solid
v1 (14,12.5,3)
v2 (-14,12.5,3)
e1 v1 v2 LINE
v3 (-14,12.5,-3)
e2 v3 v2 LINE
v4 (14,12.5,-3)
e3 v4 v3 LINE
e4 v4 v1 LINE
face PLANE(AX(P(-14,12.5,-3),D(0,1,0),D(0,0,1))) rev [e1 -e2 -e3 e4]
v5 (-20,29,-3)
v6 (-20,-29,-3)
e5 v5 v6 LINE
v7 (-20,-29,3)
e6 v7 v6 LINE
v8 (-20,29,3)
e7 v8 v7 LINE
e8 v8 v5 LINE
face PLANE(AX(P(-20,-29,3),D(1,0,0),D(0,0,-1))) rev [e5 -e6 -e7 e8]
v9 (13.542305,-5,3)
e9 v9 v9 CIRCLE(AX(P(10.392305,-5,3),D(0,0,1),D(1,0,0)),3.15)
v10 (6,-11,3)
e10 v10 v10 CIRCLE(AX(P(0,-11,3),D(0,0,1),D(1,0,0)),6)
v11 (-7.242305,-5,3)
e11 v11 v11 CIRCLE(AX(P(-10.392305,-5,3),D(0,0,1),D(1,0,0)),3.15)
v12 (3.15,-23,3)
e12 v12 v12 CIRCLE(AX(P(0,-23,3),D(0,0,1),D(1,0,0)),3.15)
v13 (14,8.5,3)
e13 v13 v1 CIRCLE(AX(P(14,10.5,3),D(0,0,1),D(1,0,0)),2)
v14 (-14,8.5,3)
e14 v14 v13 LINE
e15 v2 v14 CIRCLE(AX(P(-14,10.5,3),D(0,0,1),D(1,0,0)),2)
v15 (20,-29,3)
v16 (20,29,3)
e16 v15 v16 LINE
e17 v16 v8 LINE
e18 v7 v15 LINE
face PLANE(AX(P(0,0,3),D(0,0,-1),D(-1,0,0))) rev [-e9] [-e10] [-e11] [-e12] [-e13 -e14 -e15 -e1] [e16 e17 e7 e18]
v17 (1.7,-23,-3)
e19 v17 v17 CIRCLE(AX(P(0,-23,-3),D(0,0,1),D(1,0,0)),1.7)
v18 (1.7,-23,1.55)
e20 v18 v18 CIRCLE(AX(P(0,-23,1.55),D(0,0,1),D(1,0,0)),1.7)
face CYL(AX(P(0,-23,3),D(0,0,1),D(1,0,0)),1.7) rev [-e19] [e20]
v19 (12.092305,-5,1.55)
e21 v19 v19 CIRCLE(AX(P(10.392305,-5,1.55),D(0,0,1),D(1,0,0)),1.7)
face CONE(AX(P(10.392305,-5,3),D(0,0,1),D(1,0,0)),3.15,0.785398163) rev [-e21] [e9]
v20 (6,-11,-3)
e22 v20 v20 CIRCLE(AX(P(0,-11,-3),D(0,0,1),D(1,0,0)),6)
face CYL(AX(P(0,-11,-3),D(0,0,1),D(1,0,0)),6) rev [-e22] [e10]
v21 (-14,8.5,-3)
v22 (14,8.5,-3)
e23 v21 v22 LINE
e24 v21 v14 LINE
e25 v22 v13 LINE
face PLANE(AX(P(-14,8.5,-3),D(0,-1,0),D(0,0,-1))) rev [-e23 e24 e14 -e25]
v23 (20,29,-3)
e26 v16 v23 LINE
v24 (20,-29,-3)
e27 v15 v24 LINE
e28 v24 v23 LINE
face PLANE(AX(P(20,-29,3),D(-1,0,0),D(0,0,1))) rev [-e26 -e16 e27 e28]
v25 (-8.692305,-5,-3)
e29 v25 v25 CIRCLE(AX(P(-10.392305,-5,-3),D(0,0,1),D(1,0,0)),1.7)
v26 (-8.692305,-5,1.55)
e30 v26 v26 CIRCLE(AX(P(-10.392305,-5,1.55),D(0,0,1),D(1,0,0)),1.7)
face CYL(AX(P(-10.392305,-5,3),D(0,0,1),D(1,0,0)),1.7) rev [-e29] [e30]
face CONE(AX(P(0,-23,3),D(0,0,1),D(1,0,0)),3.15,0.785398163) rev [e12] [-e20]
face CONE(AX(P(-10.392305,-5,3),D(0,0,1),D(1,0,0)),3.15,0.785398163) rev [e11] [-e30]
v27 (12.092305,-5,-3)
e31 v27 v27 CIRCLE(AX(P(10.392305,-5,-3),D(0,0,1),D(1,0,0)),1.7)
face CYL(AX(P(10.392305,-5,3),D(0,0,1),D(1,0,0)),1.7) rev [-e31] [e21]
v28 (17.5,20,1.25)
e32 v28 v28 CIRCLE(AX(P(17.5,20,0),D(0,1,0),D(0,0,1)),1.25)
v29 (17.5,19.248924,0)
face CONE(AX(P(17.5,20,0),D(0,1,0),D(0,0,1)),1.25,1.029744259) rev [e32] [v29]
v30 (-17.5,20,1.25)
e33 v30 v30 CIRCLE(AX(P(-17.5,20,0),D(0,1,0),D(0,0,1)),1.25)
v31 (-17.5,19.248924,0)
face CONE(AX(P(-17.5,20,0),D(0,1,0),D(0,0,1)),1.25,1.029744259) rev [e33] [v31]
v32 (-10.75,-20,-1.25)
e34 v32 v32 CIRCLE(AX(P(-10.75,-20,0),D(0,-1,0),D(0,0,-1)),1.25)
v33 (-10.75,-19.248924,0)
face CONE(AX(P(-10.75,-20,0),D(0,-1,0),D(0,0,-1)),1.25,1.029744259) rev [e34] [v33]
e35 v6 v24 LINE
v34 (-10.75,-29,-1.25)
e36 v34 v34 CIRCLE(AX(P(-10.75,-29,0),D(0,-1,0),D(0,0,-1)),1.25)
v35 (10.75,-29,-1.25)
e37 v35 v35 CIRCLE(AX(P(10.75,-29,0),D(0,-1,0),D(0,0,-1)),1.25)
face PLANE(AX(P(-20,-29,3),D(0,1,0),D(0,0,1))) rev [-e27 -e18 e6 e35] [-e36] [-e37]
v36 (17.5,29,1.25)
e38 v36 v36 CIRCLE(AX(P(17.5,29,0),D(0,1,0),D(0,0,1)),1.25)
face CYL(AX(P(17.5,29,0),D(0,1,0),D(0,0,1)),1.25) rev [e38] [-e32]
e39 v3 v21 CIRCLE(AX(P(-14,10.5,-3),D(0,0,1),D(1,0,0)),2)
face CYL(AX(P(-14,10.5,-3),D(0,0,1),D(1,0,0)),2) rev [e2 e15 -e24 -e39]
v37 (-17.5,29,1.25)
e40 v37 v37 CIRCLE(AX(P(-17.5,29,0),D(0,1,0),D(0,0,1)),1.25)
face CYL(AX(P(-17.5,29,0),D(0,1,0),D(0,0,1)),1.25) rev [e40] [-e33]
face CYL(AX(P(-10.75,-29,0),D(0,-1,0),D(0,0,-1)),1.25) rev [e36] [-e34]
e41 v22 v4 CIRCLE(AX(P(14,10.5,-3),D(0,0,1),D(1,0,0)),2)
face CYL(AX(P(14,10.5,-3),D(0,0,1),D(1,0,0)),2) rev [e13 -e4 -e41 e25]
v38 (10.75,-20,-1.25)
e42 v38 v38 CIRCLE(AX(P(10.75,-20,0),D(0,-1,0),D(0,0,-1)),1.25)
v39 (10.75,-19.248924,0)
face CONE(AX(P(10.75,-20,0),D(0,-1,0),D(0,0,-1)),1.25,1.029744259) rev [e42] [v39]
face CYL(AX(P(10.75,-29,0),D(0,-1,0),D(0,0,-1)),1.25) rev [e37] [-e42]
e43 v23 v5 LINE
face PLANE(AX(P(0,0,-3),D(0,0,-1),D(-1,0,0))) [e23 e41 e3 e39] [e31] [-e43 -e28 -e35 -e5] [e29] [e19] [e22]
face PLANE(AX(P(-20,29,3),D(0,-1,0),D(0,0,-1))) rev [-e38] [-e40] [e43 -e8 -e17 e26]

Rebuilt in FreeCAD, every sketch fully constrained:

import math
import FreeCAD as App
import Part
import Sketcher
from FreeCAD import Vector

doc = App.newDocument("Part")
body = doc.addObject("PartDesign::Body", "Body")

# Sketch on XY plane
sketch1 = body.newObject("Sketcher::SketchObject", "Sketch")
sketch1.AttachmentSupport = (doc.getObject("XY_Plane"), [""])
sketch1.MapMode = "FlatFace"
sketch1.addGeometry(Part.LineSegment(Vector(-20, 29, 0), Vector(-20, -29, 0)), False)
sketch1.addGeometry(Part.LineSegment(Vector(-20, -29, 0), Vector(20, -29, 0)), False)
sketch1.addGeometry(Part.LineSegment(Vector(20, -29, 0), Vector(20, 29, 0)), False)
sketch1.addGeometry(Part.LineSegment(Vector(20, 29, 0), Vector(-20, 29, 0)), False)
sketch1.addConstraint(Sketcher.Constraint("Coincident", 0, 2, 1, 1))
sketch1.addConstraint(Sketcher.Constraint("Coincident", 1, 2, 2, 1))
sketch1.addConstraint(Sketcher.Constraint("Coincident", 2, 2, 3, 1))
sketch1.addConstraint(Sketcher.Constraint("Coincident", 3, 2, 0, 1))
sketch1.addConstraint(Sketcher.Constraint("Vertical", 0))
sketch1.addConstraint(Sketcher.Constraint("Horizontal", 1))
sketch1.addConstraint(Sketcher.Constraint("Vertical", 2))
sketch1.addConstraint(Sketcher.Constraint("Horizontal", 3))
sketch1.addConstraint(Sketcher.Constraint("Symmetric", 0, 2, 2, 2, -1, 1))
sketch1.addConstraint(Sketcher.Constraint("DistanceX", 1, 1, 1, 2, 40.0))
sketch1.addConstraint(Sketcher.Constraint("DistanceY", 0, 2, 0, 1, 58.0))
pad1 = body.newObject("PartDesign::Pad", "Pad")
pad1.Profile = sketch1
pad1.Length = 6
pad1.Midplane = True

# Sketch on XY plane
sketch2 = body.newObject("Sketcher::SketchObject", "Sketch001")
sketch2.AttachmentSupport = (doc.getObject("XY_Plane"), [""])
sketch2.MapMode = "FlatFace"
sketch2.AttachmentOffset = App.Placement(Vector(0, 0, 3), App.Rotation())
sketch2.addGeometry(Part.Circle(Vector(0, -11, 0), Vector(0, 0, 1), 6), False)
sketch2.addConstraint(Sketcher.Constraint("PointOnObject", 0, 3, -2))
sketch2.addConstraint(Sketcher.Constraint("Diameter", 0, 12.0))
sketch2.addConstraint(Sketcher.Constraint("DistanceY", 0, 3, -1, 1, 11.0))
pocket1 = body.newObject("PartDesign::Pocket", "Pocket")
pocket1.Profile = sketch2
pocket1.Type = "ThroughAll"

# Sketch on XY plane
sketch3 = body.newObject("Sketcher::SketchObject", "Sketch002")
sketch3.AttachmentSupport = (doc.getObject("XY_Plane"), [""])
sketch3.MapMode = "FlatFace"
sketch3.AttachmentOffset = App.Placement(Vector(0, 0, 3), App.Rotation())
sketch3.addGeometry(Part.Circle(Vector(0, -23, 0), Vector(0, 0, 1), 1.7), False)
sketch3.addGeometry(Part.Circle(Vector(-10.4, -5, 0), Vector(0, 0, 1), 1.7), False)
sketch3.addGeometry(Part.Circle(Vector(10.4, -5, 0), Vector(0, 0, 1), 1.7), False)
sketch3.addConstraint(Sketcher.Constraint("Equal", 0, 1))
sketch3.addConstraint(Sketcher.Constraint("Equal", 1, 2))
sketch3.addConstraint(Sketcher.Constraint("Symmetric", 1, 3, 2, 3, -2))
sketch3.addConstraint(Sketcher.Constraint("PointOnObject", 0, 3, -2))
sketch3.addConstraint(Sketcher.Constraint("Diameter", 0, 3.4))
sketch3.addConstraint(Sketcher.Constraint("DistanceY", 0, 3, -1, 1, 23.0))
sketch3.addConstraint(Sketcher.Constraint("DistanceY", 1, 3, -1, 1, 5.0))
sketch3.addConstraint(Sketcher.Constraint("DistanceX", 1, 3, 2, 3, 20.78461))
doc.recompute()
hole = body.newObject("PartDesign::Hole", "Hole")
hole.Profile = sketch3
hole.ThreadType = "None"
hole.Diameter = 3.4
hole.DepthType = "ThroughAll"
hole.HoleCutType = "Countersink"
hole.HoleCutDiameter = 6.3
hole.HoleCutCountersinkAngle = 90

# Sketch on XZ plane
sketch4 = body.newObject("Sketcher::SketchObject", "Sketch003")
sketch4.AttachmentSupport = (doc.getObject("XZ_Plane"), [""])
sketch4.MapMode = "FlatFace"
sketch4.AttachmentOffset = App.Placement(Vector(0, 0, 29), App.Rotation())
sketch4.addGeometry(Part.Circle(Vector(-10.8, 0, 0), Vector(0, 0, 1), 1.2), False)
sketch4.addGeometry(Part.Circle(Vector(10.8, 0, 0), Vector(0, 0, 1), 1.2), False)
sketch4.addConstraint(Sketcher.Constraint("Equal", 0, 1))
sketch4.addConstraint(Sketcher.Constraint("Symmetric", 0, 3, 1, 3, -1, 1))
sketch4.addConstraint(Sketcher.Constraint("PointOnObject", 0, 3, -1))
sketch4.addConstraint(Sketcher.Constraint("Diameter", 0, 2.5))
sketch4.addConstraint(Sketcher.Constraint("DistanceX", 0, 3, 1, 3, 21.5))
doc.recompute()
hole2 = body.newObject("PartDesign::Hole", "Hole001")
hole2.Profile = sketch4
hole2.ThreadType = "None"
hole2.Diameter = 2.5
hole2.DepthType = "Dimension"
hole2.Depth = 9
hole2.DrillPoint = "Angled"
hole2.DrillPointAngle = 118

# Sketch on XZ plane
sketch5 = body.newObject("Sketcher::SketchObject", "Sketch004")
sketch5.AttachmentSupport = (doc.getObject("XZ_Plane"), [""])
sketch5.MapMode = "FlatFace"
sketch5.AttachmentOffset = App.Placement(Vector(0, 0, -29), App.Rotation())
sketch5.addGeometry(Part.Circle(Vector(17.5, 0, 0), Vector(0, 0, 1), 1.2), False)
sketch5.addGeometry(Part.Circle(Vector(-17.5, 0, 0), Vector(0, 0, 1), 1.2), False)
sketch5.addConstraint(Sketcher.Constraint("Equal", 0, 1))
sketch5.addConstraint(Sketcher.Constraint("Symmetric", 0, 3, 1, 3, -1, 1))
sketch5.addConstraint(Sketcher.Constraint("PointOnObject", 0, 3, -1))
sketch5.addConstraint(Sketcher.Constraint("Diameter", 0, 2.5))
sketch5.addConstraint(Sketcher.Constraint("DistanceX", 1, 3, 0, 3, 35.0))
doc.recompute()
hole3 = body.newObject("PartDesign::Hole", "Hole002")
hole3.Profile = sketch5
hole3.ThreadType = "None"
hole3.Diameter = 2.5
hole3.DepthType = "Dimension"
hole3.Depth = 9
hole3.DrillPoint = "Angled"
hole3.DrillPointAngle = 118
hole3.Reversed = True

# Sketch on XY plane
sketch6 = body.newObject("Sketcher::SketchObject", "Sketch005")
sketch6.AttachmentSupport = (doc.getObject("XY_Plane"), [""])
sketch6.MapMode = "FlatFace"
sketch6.AttachmentOffset = App.Placement(Vector(0, 0, 3), App.Rotation())
sketch6.addGeometry(Part.LineSegment(Vector(14, 12.5, 0), Vector(-14, 12.5, 0)), False)
sketch6.addGeometry(Part.ArcOfCircle(Part.Circle(Vector(-14, 10.5, 0), Vector(0, 0, 1), 2), math.radians(90), math.radians(270)), False)
sketch6.addGeometry(Part.LineSegment(Vector(-14, 8.5, 0), Vector(14, 8.5, 0)), False)
sketch6.addGeometry(Part.ArcOfCircle(Part.Circle(Vector(14, 10.5, 0), Vector(0, 0, 1), 2), math.radians(-90), math.radians(90)), False)
sketch6.addConstraint(Sketcher.Constraint("Tangent", 0, 2, 1, 1))
sketch6.addConstraint(Sketcher.Constraint("Tangent", 1, 2, 2, 1))
sketch6.addConstraint(Sketcher.Constraint("Tangent", 2, 2, 3, 1))
sketch6.addConstraint(Sketcher.Constraint("Tangent", 3, 2, 0, 1))
sketch6.addConstraint(Sketcher.Constraint("Horizontal", 0))
sketch6.addConstraint(Sketcher.Constraint("Horizontal", 2))
sketch6.addConstraint(Sketcher.Constraint("Radius", 1, 2.0))
sketch6.addConstraint(Sketcher.Constraint("DistanceX", 0, 2, 0, 1, 28.0))
sketch6.addConstraint(Sketcher.Constraint("DistanceX", 1, 3, -1, 1, 14.0))
sketch6.addConstraint(Sketcher.Constraint("DistanceY", -1, 1, 1, 3, 10.5))
pocket2 = body.newObject("PartDesign::Pocket", "Pocket001")
pocket2.Profile = sketch6
pocket2.Type = "ThroughAll"

doc.recompute()
